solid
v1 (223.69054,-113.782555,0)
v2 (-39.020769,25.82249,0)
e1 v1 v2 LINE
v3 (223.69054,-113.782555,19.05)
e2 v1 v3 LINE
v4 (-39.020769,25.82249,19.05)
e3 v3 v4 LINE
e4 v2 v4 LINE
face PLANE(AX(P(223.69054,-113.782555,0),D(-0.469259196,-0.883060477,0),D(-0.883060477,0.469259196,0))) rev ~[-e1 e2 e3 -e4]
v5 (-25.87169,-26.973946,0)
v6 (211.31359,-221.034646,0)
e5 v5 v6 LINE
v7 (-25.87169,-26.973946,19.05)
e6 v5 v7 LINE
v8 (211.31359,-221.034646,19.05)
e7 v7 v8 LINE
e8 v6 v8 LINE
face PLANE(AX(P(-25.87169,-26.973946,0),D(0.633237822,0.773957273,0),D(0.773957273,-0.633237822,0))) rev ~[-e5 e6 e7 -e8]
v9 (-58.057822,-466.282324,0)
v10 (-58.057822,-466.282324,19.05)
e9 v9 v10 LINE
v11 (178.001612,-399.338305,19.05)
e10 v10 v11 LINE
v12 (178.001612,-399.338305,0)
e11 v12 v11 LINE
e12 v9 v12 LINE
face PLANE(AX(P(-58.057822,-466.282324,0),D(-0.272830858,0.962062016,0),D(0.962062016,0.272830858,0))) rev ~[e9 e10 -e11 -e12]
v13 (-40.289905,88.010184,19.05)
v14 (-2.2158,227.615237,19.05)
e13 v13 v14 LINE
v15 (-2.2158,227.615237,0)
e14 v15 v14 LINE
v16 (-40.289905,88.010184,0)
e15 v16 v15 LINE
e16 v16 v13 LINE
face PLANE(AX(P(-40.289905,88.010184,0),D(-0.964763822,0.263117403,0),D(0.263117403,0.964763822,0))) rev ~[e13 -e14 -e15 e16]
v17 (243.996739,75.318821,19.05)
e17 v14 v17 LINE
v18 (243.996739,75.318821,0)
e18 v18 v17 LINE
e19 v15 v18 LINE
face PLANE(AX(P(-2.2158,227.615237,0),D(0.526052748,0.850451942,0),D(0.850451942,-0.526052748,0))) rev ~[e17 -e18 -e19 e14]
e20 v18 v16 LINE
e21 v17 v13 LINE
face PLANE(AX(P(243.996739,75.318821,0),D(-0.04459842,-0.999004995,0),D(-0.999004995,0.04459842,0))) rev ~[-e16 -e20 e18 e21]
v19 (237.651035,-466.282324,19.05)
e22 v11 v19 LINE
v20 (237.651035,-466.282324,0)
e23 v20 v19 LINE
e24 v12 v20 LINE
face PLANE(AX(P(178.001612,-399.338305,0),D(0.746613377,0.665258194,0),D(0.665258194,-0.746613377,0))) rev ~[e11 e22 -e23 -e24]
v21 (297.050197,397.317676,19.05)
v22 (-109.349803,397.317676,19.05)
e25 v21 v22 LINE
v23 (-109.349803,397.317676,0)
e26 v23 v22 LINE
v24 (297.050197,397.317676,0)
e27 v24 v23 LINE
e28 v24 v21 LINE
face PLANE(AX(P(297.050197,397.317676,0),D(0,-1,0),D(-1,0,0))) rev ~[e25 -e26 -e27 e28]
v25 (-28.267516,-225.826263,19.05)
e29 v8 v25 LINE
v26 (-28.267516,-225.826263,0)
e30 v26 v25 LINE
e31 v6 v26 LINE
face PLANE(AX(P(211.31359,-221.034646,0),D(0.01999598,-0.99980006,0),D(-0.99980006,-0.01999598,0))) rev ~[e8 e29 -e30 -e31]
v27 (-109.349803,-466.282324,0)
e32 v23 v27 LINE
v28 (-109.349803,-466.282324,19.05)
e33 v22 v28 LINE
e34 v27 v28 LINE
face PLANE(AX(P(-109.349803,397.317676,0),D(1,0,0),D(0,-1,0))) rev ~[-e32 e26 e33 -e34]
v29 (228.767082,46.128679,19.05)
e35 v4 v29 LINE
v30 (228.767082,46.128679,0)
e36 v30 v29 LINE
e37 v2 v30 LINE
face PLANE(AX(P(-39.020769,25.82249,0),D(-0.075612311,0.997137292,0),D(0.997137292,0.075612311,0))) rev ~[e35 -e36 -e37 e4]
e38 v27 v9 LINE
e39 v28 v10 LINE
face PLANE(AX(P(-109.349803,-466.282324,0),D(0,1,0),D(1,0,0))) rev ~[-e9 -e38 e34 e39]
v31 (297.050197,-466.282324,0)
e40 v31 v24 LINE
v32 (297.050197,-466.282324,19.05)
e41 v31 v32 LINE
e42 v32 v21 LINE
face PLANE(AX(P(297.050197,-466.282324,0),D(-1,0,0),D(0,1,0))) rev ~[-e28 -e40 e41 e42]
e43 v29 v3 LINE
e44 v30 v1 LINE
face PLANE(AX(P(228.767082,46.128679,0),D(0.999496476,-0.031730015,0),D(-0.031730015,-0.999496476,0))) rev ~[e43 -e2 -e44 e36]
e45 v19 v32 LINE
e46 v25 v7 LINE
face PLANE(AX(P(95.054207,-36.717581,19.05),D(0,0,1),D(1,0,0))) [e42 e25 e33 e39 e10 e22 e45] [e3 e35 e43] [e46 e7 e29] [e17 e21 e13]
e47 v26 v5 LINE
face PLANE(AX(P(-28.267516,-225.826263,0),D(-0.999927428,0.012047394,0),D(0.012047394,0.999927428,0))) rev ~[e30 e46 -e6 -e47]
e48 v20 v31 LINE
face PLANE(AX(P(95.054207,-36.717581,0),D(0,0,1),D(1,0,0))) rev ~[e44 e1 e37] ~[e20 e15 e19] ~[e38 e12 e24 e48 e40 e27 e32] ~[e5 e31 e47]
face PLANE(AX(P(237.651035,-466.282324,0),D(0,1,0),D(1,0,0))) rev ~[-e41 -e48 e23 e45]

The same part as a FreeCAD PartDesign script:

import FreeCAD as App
import Part
import Sketcher

V = App.Vector
Q = App.Units.Quantity


def add_polygon(sketch, points):
    """Adds a closed chain of lines whose ends are joined by coincident constraints."""
    first, n = sketch.GeometryCount, len(points)
    for a, b in zip(points, points[1:] + points[:1]):
        sketch.addGeometry(Part.LineSegment(App.Vector(*a, 0), App.Vector(*b, 0)), False)
    for i in range(n):
        sketch.addConstraint(Sketcher.Constraint("Coincident", first + i, 2, first + (i + 1) % n, 1))

doc = App.newDocument("Part")
body = doc.addObject("PartDesign::Body", "Body")

sketch1 = doc.addObject("Sketcher::SketchObject", "Sketch")
body.addObject(sketch1)
sketch1.AttachmentSupport = (doc.XY_Plane, [""])
sketch1.MapMode = "FlatFace"
add_polygon(sketch1, [(297.050197, 397.317676), (-109.349803, 397.317676), (-109.349803, -466.282324), (-58.057822, -466.282324), (178.001612, -399.338305), (237.651035, -466.282324), (297.050197, -466.282324)])
add_polygon(sketch1, [(211.31359, -221.034646), (-28.267516, -225.826263), (-25.87169, -26.973946)])
add_polygon(sketch1, [(-39.020769, 25.82249), (228.767082, 46.128679), (223.69054, -113.782555)])
add_polygon(sketch1, [(-40.289905, 88.010184), (-2.2158, 227.615237), (243.996739, 75.318821)])
sketch1.addConstraint(Sketcher.Constraint("Horizontal", 0))
sketch1.addConstraint(Sketcher.Constraint("Vertical", 1))
sketch1.addConstraint(Sketcher.Constraint("Horizontal", 2))
sketch1.addConstraint(Sketcher.Constraint("Horizontal", 5))
sketch1.addConstraint(Sketcher.Constraint("Vertical", 6))
sketch1.addConstraint(Sketcher.Constraint("Horizontal", 2, 2, 4, 2))
sketch1.addConstraint(Sketcher.Constraint("DistanceX", 0, 2, 0, 1, Q("16 in")))
sketch1.addConstraint(Sketcher.Constraint("DistanceY", 1, 2, 1, 1, Q("34 in")))
sketch1.addConstraint(Sketcher.Constraint("DistanceY", 8, 2, 12, 2, Q("2.0785998 in")))
sketch1.addConstraint(Sketcher.Constraint("DistanceX", 2, 1, 2, 2, Q("51.291981 mm")))
sketch1.addConstraint(Sketcher.Constraint("DistanceX", 13, 2, -1, 1, Q("2.2158 mm")))
sketch1.addConstraint(Sketcher.Constraint("DistanceX", 8, 2, 3, 2, Q("203.873302 mm")))
sketch1.addConstraint(Sketcher.Constraint("DistanceY", 9, 2, 8, 2, Q("194.0607 mm")))
sketch1.addConstraint(Sketcher.Constraint("DistanceX", 11, 2, 14, 2, Q("20.306199 mm")))
sketch1.addConstraint(Sketcher.Constraint("Distance", 3, Q("245.368209 mm")))
sketch1.addConstraint(Sketcher.Constraint("Distance", 8, Q("198.866749 mm")))
sketch1.addConstraint(Sketcher.Constraint("Distance", 10, Q("268.55665 mm")))
sketch1.addConstraint(Sketcher.Constraint("Distance", 14, Q("289.50788 mm")))
sketch1.addConstraint(Sketcher.Constraint("DistanceX", 5, 1, 5, 2, Q("59.399162 mm")))
sketch1.addConstraint(Sketcher.Constraint("DistanceX", -1, 1, 3, 2, Q("178.001612 mm")))
sketch1.addConstraint(Sketcher.Constraint("DistanceX", -1, 1, 9, 2, Q("211.31359 mm")))
sketch1.addConstraint(Sketcher.Constraint("DistanceX", -1, 1, 10, 2, Q("228.767082 mm")))
sketch1.addConstraint(Sketcher.Constraint("DistanceY", -1, 1, 10, 2, Q("46.128679 mm")))
sketch1.addConstraint(Sketcher.Constraint("DistanceX", -1, 1, 11, 2, Q("223.69054 mm")))
sketch1.addConstraint(Sketcher.Constraint("DistanceX", 12, 2, -1, 1, Q("39.020769 mm")))
sketch1.addConstraint(Sketcher.Constraint("DistanceY", -1, 1, 14, 2, Q("75.318821 mm")))
sketch1.addConstraint(Sketcher.Constraint("DistanceY", 2, 2, 3, 2, Q("66.944019 mm")))
sketch1.addConstraint(Sketcher.Constraint("DistanceY", 2, 2, 7, 2, Q("240.456061 mm")))
sketch1.addConstraint(Sketcher.Constraint("DistanceX", 7, 2, 3, 2, Q("206.269128 mm")))
sketch1.addConstraint(Sketcher.Constraint("DistanceY", 9, 2, 11, 2, Q("107.252091 mm")))
sketch1.addConstraint(Sketcher.Constraint("DistanceY", 8, 2, 15, 2, Q("114.98413 mm")))
sketch1.addConstraint(Sketcher.Constraint("Distance", 13, Q("144.703864 mm")))
pad1 = doc.addObject("PartDesign::Pad", "Pad")
body.addObject(pad1)
pad1.Profile = sketch1
pad1.Length = Q("0.75 in")

doc.recompute()
